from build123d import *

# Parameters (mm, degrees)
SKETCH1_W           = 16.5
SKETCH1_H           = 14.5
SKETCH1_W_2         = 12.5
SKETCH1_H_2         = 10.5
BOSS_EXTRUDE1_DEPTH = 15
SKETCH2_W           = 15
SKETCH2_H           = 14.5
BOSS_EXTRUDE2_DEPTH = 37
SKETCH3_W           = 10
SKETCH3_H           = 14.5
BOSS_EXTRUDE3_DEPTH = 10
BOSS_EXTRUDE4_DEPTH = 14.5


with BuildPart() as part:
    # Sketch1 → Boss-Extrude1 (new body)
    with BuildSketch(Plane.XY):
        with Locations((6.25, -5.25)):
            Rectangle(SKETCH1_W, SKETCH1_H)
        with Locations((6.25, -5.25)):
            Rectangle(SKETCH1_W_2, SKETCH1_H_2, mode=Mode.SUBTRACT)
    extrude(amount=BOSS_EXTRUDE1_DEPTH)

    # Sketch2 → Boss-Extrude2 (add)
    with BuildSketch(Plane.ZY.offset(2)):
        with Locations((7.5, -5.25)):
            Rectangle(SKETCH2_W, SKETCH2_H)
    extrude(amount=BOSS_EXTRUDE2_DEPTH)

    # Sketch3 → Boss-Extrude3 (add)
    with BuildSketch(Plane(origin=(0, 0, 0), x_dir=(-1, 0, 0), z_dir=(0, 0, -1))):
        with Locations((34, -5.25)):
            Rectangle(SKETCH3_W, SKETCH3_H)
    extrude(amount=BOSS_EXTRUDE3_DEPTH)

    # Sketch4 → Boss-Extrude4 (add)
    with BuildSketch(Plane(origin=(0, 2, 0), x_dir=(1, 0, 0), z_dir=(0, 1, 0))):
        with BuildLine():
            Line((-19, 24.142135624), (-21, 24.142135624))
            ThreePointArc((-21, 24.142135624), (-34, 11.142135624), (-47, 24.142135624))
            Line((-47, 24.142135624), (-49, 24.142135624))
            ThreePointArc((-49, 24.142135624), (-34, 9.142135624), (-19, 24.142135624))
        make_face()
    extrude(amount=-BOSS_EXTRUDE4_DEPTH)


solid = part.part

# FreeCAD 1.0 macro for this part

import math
import FreeCAD as App
import Part
import Sketcher

V = App.Vector
Q = App.Units.Quantity


def add_polygon(sketch, points):
    """Adds a closed chain of lines whose ends are joined by coincident constraints."""
    first, n = sketch.GeometryCount, len(points)
    for a, b in zip(points, points[1:] + points[:1]):
        sketch.addGeometry(Part.LineSegment(App.Vector(*a, 0), App.Vector(*b, 0)), False)
    for i in range(n):
        sketch.addConstraint(Sketcher.Constraint("Coincident", first + i, 2, first + (i + 1) % n, 1))

doc = App.newDocument("Part")
body = doc.addObject("PartDesign::Body", "Body")

sketch1 = body.newObject("Sketcher::SketchObject", "Sketch")
sketch1.AttachmentSupport = (doc.getObject("XY_Plane"), [""])
sketch1.MapMode = "FlatFace"
add_polygon(sketch1, [(-2, 2), (-2, -12.5), (14.5, -12.5), (14.5, 2)])
add_polygon(sketch1, [(12.5, -10.5), (0, -10.5), (0, 0), (12.5, 0)])
sketch1.addConstraint([
    Sketcher.Constraint("Vertical", 0),
    Sketcher.Constraint("Horizontal", 1),
    Sketcher.Constraint("Vertical", 2),
    Sketcher.Constraint("Horizontal", 3),
    Sketcher.Constraint("Horizontal", 4),
    Sketcher.Constraint("Vertical", 5),
    Sketcher.Constraint("Horizontal", 6),
    Sketcher.Constraint("Vertical", 7),
    Sketcher.Constraint("Coincident", 5, 2, -1, 1),
    Sketcher.Constraint("DistanceX", 1, 1, 1, 2, Q("16.5 mm")),
    Sketcher.Constraint("DistanceX", 4, 2, 4, 1, Q("12.5 mm")),
    Sketcher.Constraint("DistanceY", 0, 2, 0, 1, Q("14.5 mm")),
    Sketcher.Constraint("DistanceY", 5, 1, 5, 2, Q("10.5 mm")),
    Sketcher.Constraint("DistanceX", 0, 2, -1, 1, Q("2 mm")),
    Sketcher.Constraint("DistanceY", -1, 1, 2, 2, Q("2 mm")),
])
pad1 = body.newObject("PartDesign::Pad", "Pad")
pad1.Profile = sketch1
pad1.Length = 15

sketch2 = body.newObject("Sketcher::SketchObject", "Sketch001")
sketch2.AttachmentSupport = (doc.getObject("YZ_Plane"), [""])
sketch2.MapMode = "FlatFace"
sketch2.AttachmentOffset = App.Placement(V(0, 0, -2), App.Rotation())
add_polygon(sketch2, [(2, 0), (-12.5, 0), (-12.5, 15), (2, 15)])
sketch2.addConstraint([
    Sketcher.Constraint("Horizontal", 0),
    Sketcher.Constraint("Vertical", 1),
    Sketcher.Constraint("Horizontal", 2),
    Sketcher.Constraint("Vertical", 3),
    Sketcher.Constraint("PointOnObject", 0, 2, -1),
    Sketcher.Constraint("DistanceY", 1, 1, 1, 2, Q("15 mm")),
    Sketcher.Constraint("DistanceX", 0, 2, 0, 1, Q("14.5 mm")),
    Sketcher.Constraint("DistanceX", -1, 1, 2, 2, Q("2 mm")),
])
pad2 = body.newObject("PartDesign::Pad", "Pad001")
pad2.Profile = sketch2
pad2.Length = 37
pad2.Reversed = True

sketch3 = body.newObject("Sketcher::SketchObject", "Sketch002")
sketch3.AttachmentSupport = (doc.getObject("XY_Plane"), [""])
sketch3.MapMode = "FlatFace"
add_polygon(sketch3, [(-29, 2), (-29, -12.5), (-39, -12.5), (-39, 2)])
sketch3.addConstraint([
    Sketcher.Constraint("Vertical", 0),
    Sketcher.Constraint("Horizontal", 1),
    Sketcher.Constraint("Vertical", 2),
    Sketcher.Constraint("Horizontal", 3),
    Sketcher.Constraint("DistanceX", 1, 2, 1, 1, Q("10 mm")),
    Sketcher.Constraint("DistanceY", 0, 2, 0, 1, Q("14.5 mm")),
    Sketcher.Constraint("DistanceX", 0, 2, -1, 1, Q("29 mm")),
    Sketcher.Constraint("DistanceY", -1, 1, 2, 2, Q("2 mm")),
])
pad3 = body.newObject("PartDesign::Pad", "Pad002")
pad3.Profile = sketch3
pad3.Length = 10
pad3.Reversed = True

sketch4 = body.newObject("Sketcher::SketchObject", "Sketch003")
sketch4.AttachmentSupport = (doc.getObject("XZ_Plane"), [""])
sketch4.MapMode = "FlatFace"
sketch4.AttachmentOffset = App.Placement(V(0, 0, -2), App.Rotation())
sketch4.addGeometry([
    Part.LineSegment(V(-19, -24.142136, 0), V(-21, -24.142136, 0)),
    Part.ArcOfCircle(Part.Circle(V(-34, -24.142136, 0), V(0, 0, 1), 13), math.radians(0), math.radians(180)),
    Part.LineSegment(V(-47, -24.142136, 0), V(-49, -24.142136, 0)),
    Part.ArcOfCircle(Part.Circle(V(-34, -24.142136, 0), V(0, 0, 1), 15), math.radians(0), math.radians(180)),
], False)
sketch4.addConstraint([
    Sketcher.Constraint("Coincident", 0, 2, 1, 1),
    Sketcher.Constraint("Coincident", 1, 2, 2, 1),
    Sketcher.Constraint("Coincident", 2, 2, 3, 2),
    Sketcher.Constraint("Coincident", 3, 1, 0, 1),
    Sketcher.Constraint("Horizontal", 0),
    Sketcher.Constraint("Horizontal", 2),
    Sketcher.Constraint("Coincident", 3, 3, 1, 3),
    Sketcher.Constraint("Horizontal", 3, 3, 0, 2),
    Sketcher.Constraint("Horizontal", 0, 2, 1, 2),
    Sketcher.Constraint("Radius", 1, Q("13 mm")),
    Sketcher.Constraint("Radius", 3, Q("15 mm")),
    Sketcher.Constraint("DistanceX", 1, 3, -1, 1, Q("34 mm")),
    Sketcher.Constraint("DistanceY", 1, 3, -1, 1, Q("24.142136 mm")),
])
pad4 = body.newObject("PartDesign::Pad", "Pad003")
pad4.Profile = sketch4
pad4.Length = 14.5

doc.recompute()
